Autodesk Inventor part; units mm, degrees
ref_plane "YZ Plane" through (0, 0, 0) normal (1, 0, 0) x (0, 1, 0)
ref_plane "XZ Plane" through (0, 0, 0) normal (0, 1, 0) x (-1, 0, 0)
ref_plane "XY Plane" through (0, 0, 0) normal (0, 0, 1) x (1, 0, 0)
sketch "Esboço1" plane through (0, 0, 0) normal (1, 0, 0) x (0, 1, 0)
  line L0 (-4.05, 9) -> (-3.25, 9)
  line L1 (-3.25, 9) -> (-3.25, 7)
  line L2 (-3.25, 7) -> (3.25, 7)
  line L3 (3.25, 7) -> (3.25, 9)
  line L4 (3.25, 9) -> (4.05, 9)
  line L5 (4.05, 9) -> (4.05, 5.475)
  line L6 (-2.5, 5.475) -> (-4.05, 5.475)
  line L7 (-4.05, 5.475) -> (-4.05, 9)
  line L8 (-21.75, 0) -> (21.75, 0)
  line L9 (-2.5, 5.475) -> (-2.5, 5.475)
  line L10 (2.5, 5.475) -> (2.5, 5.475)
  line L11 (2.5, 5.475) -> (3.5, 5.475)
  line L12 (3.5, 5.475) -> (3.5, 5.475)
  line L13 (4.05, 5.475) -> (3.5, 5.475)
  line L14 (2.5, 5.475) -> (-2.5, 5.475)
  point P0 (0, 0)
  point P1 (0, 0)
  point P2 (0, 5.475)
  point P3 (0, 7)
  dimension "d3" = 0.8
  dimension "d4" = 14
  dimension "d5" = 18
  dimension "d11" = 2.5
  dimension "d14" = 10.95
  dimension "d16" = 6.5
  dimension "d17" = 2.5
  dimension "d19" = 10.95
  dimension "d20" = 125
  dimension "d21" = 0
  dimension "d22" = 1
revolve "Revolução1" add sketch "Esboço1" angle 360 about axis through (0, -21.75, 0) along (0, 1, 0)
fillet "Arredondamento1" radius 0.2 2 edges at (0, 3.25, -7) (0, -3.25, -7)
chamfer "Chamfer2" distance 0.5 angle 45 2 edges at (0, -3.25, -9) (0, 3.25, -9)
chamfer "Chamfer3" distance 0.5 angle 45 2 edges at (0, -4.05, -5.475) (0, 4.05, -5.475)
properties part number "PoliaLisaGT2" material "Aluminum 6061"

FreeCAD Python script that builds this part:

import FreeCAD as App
import Part
import Sketcher

V = App.Vector


def edges_at(feature, points):
    """Names of the edges that pass closest to the given points."""
    edges = feature.Shape.Edges
    near = lambda p: min(range(len(edges)), key=lambda i: edges[i].distToShape(Part.Vertex(*p))[0])
    return sorted({f"Edge{near(p) + 1}" for p in points})


def add_polygon(sketch, points):
    """Adds a closed chain of lines whose ends are joined by coincident constraints."""
    first, n = sketch.GeometryCount, len(points)
    for a, b in zip(points, points[1:] + points[:1]):
        sketch.addGeometry(Part.LineSegment(App.Vector(*a, 0), App.Vector(*b, 0)), False)
    for i in range(n):
        sketch.addConstraint(Sketcher.Constraint("Coincident", first + i, 2, first + (i + 1) % n, 1))

doc = App.newDocument("Part")
body = doc.addObject("PartDesign::Body", "Body")

sketch1 = body.newObject("Sketcher::SketchObject", "Sketch")
sketch1.AttachmentSupport = (doc.getObject("YZ_Plane"), [""])
sketch1.MapMode = "FlatFace"
add_polygon(sketch1, [(-3.2, 9), (-4, 9), (-4, 5.5), (4, 5.5), (4, 9), (3.2, 9), (3.2, 7), (-3.2, 7)])
sketch1.addConstraint(Sketcher.Constraint("Horizontal", 0))
sketch1.addConstraint(Sketcher.Constraint("Vertical", 1))
sketch1.addConstraint(Sketcher.Constraint("Horizontal", 2))
sketch1.addConstraint(Sketcher.Constraint("Vertical", 3))
sketch1.addConstraint(Sketcher.Constraint("Horizontal", 4))
sketch1.addConstraint(Sketcher.Constraint("Vertical", 5))
sketch1.addConstraint(Sketcher.Constraint("Horizontal", 6))
sketch1.addConstraint(Sketcher.Constraint("Vertical", 7))
sketch1.addConstraint(Sketcher.Constraint("Symmetric", 0, 2, 3, 2, -2))
sketch1.addConstraint(Sketcher.Constraint("Equal", 0, 4))
sketch1.addConstraint(Sketcher.Constraint("DistanceX", 0, 2, 0, 1, 0.8))
sketch1.addConstraint(Sketcher.Constraint("DistanceX", 6, 2, 6, 1, 6.5))
sketch1.addConstraint(Sketcher.Constraint("DistanceY", 5, 2, 5, 1, 2.0))
sketch1.addConstraint(Sketcher.Constraint("DistanceY", -1, 1, 0, 2, 9.0))
sketch1.addConstraint(Sketcher.Constraint("DistanceY", 1, 2, 1, 1, 3.525))
revolution = body.newObject("PartDesign::Revolution", "Revolution")
revolution.Profile = sketch1
revolution.ReferenceAxis = (sketch1, ["H_Axis"])
revolution.Angle = 360
doc.recompute()

fillet = body.newObject("PartDesign::Fillet", "Fillet")
fillet.Base = (revolution, edges_at(revolution, [(0, 3.25, -7), (0, -3.25, -7)]))
fillet.Radius = 0.2
doc.recompute()

chamfer = body.newObject("PartDesign::Chamfer", "Chamfer")
chamfer.Base = (fillet, edges_at(fillet, [(0, -3.25, -9), (0, 3.25, -9)]))
chamfer.Size = 0.5
doc.recompute()

chamfer2 = body.newObject("PartDesign::Chamfer", "Chamfer001")
chamfer2.Base = (chamfer, edges_at(chamfer, [(0, -4.05, -5.475), (0, 4.05, -5.475)]))
chamfer2.Size = 0.5

doc.recompute()
